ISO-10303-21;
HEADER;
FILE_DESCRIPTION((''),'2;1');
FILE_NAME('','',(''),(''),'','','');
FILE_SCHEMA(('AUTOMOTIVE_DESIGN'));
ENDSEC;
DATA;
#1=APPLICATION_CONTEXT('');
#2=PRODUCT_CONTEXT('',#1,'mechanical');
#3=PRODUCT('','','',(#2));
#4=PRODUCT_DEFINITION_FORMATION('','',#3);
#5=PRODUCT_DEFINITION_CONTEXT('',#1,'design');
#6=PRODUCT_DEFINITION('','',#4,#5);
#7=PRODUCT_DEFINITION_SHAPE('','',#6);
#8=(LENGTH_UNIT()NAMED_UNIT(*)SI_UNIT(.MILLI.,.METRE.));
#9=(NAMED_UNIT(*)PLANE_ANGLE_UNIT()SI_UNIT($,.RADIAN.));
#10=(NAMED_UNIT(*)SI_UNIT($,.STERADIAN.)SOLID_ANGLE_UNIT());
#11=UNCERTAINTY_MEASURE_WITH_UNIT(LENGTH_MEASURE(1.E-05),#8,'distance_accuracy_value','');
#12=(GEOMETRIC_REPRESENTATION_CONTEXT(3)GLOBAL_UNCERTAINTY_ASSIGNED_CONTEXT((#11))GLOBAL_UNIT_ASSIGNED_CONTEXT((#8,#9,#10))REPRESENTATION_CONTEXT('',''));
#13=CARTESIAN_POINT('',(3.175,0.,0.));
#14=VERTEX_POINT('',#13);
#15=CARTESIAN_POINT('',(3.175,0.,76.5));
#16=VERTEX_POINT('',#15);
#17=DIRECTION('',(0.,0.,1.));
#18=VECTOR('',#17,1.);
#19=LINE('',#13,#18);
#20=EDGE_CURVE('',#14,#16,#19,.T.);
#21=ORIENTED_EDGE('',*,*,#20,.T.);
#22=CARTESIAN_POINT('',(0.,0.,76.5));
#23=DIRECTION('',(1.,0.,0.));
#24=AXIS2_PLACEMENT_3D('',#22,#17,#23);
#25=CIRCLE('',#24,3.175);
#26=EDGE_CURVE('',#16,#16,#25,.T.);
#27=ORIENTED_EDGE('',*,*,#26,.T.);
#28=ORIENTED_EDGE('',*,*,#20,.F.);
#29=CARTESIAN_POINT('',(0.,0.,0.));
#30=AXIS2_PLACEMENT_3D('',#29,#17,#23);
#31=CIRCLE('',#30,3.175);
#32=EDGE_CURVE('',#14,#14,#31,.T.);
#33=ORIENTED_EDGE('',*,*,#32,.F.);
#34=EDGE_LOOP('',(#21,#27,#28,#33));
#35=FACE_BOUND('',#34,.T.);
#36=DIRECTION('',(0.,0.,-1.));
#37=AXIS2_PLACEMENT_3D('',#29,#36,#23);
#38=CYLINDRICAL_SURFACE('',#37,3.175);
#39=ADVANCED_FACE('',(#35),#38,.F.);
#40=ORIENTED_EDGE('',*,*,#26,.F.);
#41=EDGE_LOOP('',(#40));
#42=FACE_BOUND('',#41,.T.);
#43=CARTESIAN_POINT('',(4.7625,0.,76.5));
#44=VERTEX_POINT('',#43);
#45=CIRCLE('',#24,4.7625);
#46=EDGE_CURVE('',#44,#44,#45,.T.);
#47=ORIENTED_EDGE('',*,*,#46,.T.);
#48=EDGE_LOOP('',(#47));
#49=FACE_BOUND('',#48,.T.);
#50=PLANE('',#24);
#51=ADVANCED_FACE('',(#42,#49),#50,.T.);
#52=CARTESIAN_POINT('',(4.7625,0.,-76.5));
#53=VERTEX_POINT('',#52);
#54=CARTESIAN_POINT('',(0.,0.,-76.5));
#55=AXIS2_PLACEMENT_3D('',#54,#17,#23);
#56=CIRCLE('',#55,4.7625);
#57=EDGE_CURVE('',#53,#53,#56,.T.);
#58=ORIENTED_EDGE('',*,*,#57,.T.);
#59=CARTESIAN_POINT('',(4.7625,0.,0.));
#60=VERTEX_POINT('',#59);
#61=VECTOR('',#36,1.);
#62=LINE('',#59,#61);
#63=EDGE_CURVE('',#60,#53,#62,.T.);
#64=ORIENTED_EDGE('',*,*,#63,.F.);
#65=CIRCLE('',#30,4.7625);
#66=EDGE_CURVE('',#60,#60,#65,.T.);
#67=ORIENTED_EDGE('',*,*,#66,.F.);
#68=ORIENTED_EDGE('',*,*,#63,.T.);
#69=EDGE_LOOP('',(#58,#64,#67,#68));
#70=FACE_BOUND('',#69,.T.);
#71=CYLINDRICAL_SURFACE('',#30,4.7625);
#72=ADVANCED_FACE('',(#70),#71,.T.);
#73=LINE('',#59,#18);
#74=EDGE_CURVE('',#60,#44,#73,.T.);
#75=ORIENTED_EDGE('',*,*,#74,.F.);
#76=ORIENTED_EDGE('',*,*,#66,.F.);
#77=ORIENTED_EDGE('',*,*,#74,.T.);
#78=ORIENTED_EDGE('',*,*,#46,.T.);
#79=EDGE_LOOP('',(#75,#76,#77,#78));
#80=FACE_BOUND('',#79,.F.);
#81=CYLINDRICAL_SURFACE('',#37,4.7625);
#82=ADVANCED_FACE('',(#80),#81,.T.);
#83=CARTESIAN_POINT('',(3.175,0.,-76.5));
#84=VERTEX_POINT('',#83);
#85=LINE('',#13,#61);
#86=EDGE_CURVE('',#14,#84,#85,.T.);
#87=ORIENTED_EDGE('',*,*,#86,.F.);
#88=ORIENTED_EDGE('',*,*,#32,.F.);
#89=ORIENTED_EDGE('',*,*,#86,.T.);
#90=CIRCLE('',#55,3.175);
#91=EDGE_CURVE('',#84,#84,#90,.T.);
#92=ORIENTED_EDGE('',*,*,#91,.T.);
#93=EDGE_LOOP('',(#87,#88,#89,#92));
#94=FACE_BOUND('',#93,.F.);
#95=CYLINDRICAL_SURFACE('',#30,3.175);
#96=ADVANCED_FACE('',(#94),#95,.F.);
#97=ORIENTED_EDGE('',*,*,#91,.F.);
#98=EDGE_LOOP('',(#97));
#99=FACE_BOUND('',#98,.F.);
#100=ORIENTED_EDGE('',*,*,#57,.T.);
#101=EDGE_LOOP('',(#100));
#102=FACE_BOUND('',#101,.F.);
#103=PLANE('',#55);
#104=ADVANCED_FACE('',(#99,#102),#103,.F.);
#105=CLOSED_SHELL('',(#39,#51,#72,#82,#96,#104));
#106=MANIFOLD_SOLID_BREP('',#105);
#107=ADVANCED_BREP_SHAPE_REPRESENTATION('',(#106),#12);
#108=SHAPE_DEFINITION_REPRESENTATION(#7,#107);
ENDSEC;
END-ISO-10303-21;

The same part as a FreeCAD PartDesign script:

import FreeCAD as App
import Part
import Sketcher
Q = App.Units.Quantity

doc = App.newDocument("Part")
body = doc.addObject("PartDesign::Body", "Body")

sketch1 = doc.addObject("Sketcher::SketchObject", "Sketch")
body.addObject(sketch1)
sketch1.AttachmentSupport = (doc.XY_Plane, [""])
sketch1.MapMode = "FlatFace"
sketch1.addGeometry(Part.Circle(App.Vector(0, 0, 0), App.Vector(0, 0, 1), 4.7625), False)
sketch1.addGeometry(Part.Circle(App.Vector(0, 0, 0), App.Vector(0, 0, 1), 3.175), False)
sketch1.addConstraint(Sketcher.Constraint("Coincident", 0, 3, -1, 1))
sketch1.addConstraint(Sketcher.Constraint("Coincident", 1, 3, -1, 1))
sketch1.addConstraint(Sketcher.Constraint("Diameter", 1, Q("0.25 in")))
sketch1.addConstraint(Sketcher.Constraint("Diameter", 0, Q("0.375 in")))
pad1 = doc.addObject("PartDesign::Pad", "Pad")
body.addObject(pad1)
pad1.Profile = sketch1
pad1.Length = 153
pad1.Midplane = True

doc.recompute()
